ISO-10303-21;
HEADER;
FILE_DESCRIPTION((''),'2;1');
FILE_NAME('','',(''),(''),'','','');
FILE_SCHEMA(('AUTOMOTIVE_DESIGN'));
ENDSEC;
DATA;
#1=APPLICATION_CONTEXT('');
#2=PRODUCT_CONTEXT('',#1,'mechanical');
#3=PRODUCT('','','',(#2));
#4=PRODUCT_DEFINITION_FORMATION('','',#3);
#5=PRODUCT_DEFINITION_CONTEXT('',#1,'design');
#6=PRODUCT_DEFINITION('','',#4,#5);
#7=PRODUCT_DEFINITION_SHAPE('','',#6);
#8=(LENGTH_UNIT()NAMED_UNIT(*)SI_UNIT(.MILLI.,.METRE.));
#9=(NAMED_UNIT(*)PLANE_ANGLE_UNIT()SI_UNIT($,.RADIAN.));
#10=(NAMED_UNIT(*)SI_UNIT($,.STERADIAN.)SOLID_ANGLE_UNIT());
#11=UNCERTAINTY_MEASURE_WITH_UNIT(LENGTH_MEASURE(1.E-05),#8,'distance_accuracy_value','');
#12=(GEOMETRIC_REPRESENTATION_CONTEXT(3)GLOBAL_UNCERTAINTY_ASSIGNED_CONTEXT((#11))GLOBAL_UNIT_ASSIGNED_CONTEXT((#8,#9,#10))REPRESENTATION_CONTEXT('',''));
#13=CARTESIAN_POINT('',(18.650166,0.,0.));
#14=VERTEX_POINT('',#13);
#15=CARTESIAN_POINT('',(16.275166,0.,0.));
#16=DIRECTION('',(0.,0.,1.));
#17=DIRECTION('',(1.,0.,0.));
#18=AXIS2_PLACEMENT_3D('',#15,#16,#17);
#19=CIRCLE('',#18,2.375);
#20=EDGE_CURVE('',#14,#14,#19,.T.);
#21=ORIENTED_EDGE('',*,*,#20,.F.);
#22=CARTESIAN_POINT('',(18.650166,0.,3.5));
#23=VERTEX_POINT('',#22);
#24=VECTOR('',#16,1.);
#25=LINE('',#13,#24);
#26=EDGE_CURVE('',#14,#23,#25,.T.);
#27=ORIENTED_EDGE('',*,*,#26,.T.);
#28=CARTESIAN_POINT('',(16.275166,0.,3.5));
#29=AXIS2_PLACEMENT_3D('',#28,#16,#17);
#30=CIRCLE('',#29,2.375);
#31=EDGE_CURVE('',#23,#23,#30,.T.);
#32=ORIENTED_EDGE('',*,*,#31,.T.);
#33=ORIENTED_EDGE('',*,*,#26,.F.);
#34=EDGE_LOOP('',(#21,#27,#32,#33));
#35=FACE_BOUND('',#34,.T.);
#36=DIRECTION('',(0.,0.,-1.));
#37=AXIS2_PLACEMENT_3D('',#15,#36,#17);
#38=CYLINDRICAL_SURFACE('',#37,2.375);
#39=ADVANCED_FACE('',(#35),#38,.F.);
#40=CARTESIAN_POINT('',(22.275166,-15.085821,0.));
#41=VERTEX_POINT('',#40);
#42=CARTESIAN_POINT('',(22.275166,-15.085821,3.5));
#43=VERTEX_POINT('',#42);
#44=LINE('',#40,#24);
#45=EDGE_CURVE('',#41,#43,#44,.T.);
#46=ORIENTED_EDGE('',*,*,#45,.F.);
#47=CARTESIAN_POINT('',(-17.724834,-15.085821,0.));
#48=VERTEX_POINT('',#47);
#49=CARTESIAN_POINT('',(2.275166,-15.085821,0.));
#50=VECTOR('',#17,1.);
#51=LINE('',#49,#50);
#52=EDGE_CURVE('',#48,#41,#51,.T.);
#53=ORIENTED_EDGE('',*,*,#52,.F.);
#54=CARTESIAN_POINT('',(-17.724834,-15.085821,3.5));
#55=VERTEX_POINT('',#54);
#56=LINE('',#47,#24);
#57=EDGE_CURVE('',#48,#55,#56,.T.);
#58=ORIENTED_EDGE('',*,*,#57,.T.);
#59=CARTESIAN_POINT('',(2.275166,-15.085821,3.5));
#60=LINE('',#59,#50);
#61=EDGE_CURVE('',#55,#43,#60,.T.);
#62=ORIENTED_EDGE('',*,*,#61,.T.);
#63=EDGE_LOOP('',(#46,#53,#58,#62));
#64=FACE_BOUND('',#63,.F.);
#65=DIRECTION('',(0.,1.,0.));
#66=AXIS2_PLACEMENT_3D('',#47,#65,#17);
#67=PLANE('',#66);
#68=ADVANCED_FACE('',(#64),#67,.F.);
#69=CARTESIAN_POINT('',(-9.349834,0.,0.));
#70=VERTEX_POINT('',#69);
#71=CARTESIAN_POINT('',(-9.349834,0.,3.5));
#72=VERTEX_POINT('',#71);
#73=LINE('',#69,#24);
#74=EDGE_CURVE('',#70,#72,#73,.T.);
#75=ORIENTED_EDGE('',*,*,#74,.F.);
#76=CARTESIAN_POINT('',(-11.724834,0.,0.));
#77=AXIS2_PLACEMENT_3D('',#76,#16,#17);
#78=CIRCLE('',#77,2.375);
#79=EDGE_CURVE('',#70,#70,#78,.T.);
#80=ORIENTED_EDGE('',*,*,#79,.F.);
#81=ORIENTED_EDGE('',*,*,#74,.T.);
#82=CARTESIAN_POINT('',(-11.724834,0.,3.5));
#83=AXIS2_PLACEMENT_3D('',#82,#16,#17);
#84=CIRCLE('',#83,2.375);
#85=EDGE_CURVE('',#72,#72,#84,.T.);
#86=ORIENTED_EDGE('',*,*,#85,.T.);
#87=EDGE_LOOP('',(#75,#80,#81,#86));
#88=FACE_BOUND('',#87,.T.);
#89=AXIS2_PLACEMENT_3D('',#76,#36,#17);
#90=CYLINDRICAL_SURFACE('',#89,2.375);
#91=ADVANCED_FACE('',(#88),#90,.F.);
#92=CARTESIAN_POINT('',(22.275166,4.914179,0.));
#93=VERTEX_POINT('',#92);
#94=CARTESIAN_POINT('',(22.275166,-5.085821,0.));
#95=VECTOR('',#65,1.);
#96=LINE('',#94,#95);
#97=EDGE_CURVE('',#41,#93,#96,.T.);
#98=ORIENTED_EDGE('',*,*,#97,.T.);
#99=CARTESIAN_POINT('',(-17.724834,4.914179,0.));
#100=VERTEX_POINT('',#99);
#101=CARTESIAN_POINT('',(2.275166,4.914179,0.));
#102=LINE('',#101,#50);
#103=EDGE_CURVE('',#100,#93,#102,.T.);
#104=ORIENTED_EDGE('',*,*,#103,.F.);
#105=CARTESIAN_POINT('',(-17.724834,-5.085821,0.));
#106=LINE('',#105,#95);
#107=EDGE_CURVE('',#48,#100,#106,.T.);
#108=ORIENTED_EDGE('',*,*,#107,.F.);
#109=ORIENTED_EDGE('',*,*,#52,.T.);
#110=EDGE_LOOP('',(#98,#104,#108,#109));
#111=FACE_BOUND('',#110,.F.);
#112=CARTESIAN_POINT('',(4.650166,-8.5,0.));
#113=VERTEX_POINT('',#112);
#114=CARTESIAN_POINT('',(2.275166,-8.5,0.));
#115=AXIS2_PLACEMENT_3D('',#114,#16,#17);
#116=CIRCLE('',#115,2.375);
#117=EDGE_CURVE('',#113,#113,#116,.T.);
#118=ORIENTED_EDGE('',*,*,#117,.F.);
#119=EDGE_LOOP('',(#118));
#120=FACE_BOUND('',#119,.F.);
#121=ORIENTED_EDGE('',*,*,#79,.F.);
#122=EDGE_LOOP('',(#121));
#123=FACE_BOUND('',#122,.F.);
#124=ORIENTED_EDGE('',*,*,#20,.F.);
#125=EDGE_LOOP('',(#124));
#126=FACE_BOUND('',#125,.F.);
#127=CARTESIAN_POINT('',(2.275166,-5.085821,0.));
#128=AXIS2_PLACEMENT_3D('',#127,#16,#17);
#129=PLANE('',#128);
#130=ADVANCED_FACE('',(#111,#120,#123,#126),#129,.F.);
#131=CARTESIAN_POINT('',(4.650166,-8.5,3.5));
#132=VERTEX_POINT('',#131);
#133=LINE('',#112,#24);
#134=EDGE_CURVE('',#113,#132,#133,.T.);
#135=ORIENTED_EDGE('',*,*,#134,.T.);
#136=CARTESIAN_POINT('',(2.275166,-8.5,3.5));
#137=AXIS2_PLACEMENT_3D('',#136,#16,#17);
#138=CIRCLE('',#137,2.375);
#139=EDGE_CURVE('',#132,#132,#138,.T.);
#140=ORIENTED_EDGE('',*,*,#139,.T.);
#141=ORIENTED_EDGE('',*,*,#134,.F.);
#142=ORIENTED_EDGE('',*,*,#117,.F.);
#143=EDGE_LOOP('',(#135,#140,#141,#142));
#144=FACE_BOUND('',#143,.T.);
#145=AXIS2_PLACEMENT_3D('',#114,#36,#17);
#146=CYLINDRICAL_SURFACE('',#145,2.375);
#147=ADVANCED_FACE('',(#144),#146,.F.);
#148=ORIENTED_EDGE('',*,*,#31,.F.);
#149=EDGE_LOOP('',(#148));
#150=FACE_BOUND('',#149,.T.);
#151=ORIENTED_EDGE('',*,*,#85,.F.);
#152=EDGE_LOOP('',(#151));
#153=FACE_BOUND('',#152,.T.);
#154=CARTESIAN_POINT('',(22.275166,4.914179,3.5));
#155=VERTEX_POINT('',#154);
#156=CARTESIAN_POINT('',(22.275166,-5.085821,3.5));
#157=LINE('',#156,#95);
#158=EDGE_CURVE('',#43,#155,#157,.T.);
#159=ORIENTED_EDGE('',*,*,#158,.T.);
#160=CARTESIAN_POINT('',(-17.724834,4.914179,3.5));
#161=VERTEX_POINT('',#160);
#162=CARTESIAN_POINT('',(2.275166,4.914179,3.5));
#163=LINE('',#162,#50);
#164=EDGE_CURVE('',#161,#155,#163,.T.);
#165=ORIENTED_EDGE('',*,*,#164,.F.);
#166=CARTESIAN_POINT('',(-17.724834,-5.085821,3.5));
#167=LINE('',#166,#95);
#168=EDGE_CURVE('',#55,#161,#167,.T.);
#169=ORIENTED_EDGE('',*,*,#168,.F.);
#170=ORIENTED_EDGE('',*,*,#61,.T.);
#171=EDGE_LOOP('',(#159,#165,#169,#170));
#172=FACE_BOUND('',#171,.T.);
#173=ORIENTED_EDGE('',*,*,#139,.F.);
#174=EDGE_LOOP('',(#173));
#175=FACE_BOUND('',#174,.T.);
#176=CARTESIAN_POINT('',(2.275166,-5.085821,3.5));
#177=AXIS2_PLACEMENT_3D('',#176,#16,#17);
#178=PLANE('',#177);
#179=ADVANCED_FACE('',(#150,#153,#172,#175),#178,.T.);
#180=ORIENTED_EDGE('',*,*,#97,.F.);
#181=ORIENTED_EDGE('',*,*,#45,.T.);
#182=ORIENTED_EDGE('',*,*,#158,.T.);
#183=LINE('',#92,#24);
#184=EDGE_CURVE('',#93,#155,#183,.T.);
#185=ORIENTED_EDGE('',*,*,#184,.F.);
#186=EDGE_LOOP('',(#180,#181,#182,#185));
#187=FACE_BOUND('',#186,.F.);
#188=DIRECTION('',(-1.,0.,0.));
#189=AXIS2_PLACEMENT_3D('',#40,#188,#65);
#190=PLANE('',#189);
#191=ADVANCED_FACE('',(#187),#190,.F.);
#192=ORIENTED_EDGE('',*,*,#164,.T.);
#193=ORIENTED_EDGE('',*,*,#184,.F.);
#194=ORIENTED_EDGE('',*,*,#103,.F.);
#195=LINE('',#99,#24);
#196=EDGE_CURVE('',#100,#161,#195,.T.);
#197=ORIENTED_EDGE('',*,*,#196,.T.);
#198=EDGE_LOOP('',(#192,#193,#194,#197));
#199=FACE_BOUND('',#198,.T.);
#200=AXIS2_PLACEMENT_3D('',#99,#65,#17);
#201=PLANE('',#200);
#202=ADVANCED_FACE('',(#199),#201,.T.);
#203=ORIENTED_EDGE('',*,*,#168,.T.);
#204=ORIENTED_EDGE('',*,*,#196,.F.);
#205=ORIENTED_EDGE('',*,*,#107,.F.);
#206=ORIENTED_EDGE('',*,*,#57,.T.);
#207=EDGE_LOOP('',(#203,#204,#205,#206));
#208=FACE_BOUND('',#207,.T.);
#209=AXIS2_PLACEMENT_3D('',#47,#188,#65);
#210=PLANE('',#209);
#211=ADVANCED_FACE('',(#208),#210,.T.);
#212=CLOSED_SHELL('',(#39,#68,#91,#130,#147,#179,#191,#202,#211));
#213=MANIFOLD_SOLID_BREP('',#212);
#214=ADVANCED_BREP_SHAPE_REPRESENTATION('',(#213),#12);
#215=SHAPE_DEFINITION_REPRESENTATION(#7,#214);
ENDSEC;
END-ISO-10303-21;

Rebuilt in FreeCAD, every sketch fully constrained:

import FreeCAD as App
import Part
import Sketcher

doc = App.newDocument("Part")
body = doc.addObject("PartDesign::Body", "Body")

sketch1 = doc.addObject("Sketcher::SketchObject", "Sketch")
body.addObject(sketch1)
sketch1.AttachmentSupport = (doc.XY_Plane, [""])
sketch1.MapMode = "FlatFace"
sketch1.addGeometry(Part.LineSegment(App.Vector(-17.724834, 4.914179, 0), App.Vector(-17.724834, -15.085821, 0)), False)
sketch1.addGeometry(Part.LineSegment(App.Vector(-17.724834, -15.085821, 0), App.Vector(22.275166, -15.085821, 0)), False)
sketch1.addGeometry(Part.LineSegment(App.Vector(22.275166, -15.085821, 0), App.Vector(22.275166, 4.914179, 0)), False)
sketch1.addGeometry(Part.LineSegment(App.Vector(22.275166, 4.914179, 0), App.Vector(-17.724834, 4.914179, 0)), False)
sketch1.addGeometry(Part.Circle(App.Vector(2.275166, -8.5, 0), App.Vector(0, 0, 1), 2.375), False)
sketch1.addGeometry(Part.Circle(App.Vector(-11.724834, 0, 0), App.Vector(0, 0, 1), 2.375), False)
sketch1.addGeometry(Part.Circle(App.Vector(16.275166, 0, 0), App.Vector(0, 0, 1), 2.375), False)
sketch1.addConstraint(Sketcher.Constraint("Coincident", 0, 2, 1, 1))
sketch1.addConstraint(Sketcher.Constraint("Coincident", 1, 2, 2, 1))
sketch1.addConstraint(Sketcher.Constraint("Coincident", 2, 2, 3, 1))
sketch1.addConstraint(Sketcher.Constraint("Coincident", 3, 2, 0, 1))
sketch1.addConstraint(Sketcher.Constraint("Vertical", 0))
sketch1.addConstraint(Sketcher.Constraint("Horizontal", 1))
sketch1.addConstraint(Sketcher.Constraint("Vertical", 2))
sketch1.addConstraint(Sketcher.Constraint("Horizontal", 3))
sketch1.addConstraint(Sketcher.Constraint("Equal", 4, 5))
sketch1.addConstraint(Sketcher.Constraint("Equal", 5, 6))
sketch1.addConstraint(Sketcher.Constraint("PointOnObject", 5, 3, -1))
sketch1.addConstraint(Sketcher.Constraint("PointOnObject", 6, 3, -1))
sketch1.addConstraint(Sketcher.Constraint("Diameter", 4, 4.75))
sketch1.addConstraint(Sketcher.Constraint("DistanceX", 1, 1, 1, 2, 40.0))
sketch1.addConstraint(Sketcher.Constraint("DistanceY", 0, 2, 0, 1, 20.0))
sketch1.addConstraint(Sketcher.Constraint("DistanceX", 5, 3, 4, 3, 14.0))
sketch1.addConstraint(Sketcher.Constraint("DistanceX", 4, 3, 6, 3, 14.0))
sketch1.addConstraint(Sketcher.Constraint("DistanceX", 0, 2, 5, 3, 6.0))
sketch1.addConstraint(Sketcher.Constraint("DistanceY", 4, 3, -1, 1, 8.5))
sketch1.addConstraint(Sketcher.Constraint("DistanceY", 0, 2, -1, 1, 15.085821))
sketch1.addConstraint(Sketcher.Constraint("DistanceX", -1, 1, 4, 3, 2.275166))
pad1 = doc.addObject("PartDesign::Pad", "Pad")
body.addObject(pad1)
pad1.Profile = sketch1
pad1.Length = 3.5

doc.recompute()
